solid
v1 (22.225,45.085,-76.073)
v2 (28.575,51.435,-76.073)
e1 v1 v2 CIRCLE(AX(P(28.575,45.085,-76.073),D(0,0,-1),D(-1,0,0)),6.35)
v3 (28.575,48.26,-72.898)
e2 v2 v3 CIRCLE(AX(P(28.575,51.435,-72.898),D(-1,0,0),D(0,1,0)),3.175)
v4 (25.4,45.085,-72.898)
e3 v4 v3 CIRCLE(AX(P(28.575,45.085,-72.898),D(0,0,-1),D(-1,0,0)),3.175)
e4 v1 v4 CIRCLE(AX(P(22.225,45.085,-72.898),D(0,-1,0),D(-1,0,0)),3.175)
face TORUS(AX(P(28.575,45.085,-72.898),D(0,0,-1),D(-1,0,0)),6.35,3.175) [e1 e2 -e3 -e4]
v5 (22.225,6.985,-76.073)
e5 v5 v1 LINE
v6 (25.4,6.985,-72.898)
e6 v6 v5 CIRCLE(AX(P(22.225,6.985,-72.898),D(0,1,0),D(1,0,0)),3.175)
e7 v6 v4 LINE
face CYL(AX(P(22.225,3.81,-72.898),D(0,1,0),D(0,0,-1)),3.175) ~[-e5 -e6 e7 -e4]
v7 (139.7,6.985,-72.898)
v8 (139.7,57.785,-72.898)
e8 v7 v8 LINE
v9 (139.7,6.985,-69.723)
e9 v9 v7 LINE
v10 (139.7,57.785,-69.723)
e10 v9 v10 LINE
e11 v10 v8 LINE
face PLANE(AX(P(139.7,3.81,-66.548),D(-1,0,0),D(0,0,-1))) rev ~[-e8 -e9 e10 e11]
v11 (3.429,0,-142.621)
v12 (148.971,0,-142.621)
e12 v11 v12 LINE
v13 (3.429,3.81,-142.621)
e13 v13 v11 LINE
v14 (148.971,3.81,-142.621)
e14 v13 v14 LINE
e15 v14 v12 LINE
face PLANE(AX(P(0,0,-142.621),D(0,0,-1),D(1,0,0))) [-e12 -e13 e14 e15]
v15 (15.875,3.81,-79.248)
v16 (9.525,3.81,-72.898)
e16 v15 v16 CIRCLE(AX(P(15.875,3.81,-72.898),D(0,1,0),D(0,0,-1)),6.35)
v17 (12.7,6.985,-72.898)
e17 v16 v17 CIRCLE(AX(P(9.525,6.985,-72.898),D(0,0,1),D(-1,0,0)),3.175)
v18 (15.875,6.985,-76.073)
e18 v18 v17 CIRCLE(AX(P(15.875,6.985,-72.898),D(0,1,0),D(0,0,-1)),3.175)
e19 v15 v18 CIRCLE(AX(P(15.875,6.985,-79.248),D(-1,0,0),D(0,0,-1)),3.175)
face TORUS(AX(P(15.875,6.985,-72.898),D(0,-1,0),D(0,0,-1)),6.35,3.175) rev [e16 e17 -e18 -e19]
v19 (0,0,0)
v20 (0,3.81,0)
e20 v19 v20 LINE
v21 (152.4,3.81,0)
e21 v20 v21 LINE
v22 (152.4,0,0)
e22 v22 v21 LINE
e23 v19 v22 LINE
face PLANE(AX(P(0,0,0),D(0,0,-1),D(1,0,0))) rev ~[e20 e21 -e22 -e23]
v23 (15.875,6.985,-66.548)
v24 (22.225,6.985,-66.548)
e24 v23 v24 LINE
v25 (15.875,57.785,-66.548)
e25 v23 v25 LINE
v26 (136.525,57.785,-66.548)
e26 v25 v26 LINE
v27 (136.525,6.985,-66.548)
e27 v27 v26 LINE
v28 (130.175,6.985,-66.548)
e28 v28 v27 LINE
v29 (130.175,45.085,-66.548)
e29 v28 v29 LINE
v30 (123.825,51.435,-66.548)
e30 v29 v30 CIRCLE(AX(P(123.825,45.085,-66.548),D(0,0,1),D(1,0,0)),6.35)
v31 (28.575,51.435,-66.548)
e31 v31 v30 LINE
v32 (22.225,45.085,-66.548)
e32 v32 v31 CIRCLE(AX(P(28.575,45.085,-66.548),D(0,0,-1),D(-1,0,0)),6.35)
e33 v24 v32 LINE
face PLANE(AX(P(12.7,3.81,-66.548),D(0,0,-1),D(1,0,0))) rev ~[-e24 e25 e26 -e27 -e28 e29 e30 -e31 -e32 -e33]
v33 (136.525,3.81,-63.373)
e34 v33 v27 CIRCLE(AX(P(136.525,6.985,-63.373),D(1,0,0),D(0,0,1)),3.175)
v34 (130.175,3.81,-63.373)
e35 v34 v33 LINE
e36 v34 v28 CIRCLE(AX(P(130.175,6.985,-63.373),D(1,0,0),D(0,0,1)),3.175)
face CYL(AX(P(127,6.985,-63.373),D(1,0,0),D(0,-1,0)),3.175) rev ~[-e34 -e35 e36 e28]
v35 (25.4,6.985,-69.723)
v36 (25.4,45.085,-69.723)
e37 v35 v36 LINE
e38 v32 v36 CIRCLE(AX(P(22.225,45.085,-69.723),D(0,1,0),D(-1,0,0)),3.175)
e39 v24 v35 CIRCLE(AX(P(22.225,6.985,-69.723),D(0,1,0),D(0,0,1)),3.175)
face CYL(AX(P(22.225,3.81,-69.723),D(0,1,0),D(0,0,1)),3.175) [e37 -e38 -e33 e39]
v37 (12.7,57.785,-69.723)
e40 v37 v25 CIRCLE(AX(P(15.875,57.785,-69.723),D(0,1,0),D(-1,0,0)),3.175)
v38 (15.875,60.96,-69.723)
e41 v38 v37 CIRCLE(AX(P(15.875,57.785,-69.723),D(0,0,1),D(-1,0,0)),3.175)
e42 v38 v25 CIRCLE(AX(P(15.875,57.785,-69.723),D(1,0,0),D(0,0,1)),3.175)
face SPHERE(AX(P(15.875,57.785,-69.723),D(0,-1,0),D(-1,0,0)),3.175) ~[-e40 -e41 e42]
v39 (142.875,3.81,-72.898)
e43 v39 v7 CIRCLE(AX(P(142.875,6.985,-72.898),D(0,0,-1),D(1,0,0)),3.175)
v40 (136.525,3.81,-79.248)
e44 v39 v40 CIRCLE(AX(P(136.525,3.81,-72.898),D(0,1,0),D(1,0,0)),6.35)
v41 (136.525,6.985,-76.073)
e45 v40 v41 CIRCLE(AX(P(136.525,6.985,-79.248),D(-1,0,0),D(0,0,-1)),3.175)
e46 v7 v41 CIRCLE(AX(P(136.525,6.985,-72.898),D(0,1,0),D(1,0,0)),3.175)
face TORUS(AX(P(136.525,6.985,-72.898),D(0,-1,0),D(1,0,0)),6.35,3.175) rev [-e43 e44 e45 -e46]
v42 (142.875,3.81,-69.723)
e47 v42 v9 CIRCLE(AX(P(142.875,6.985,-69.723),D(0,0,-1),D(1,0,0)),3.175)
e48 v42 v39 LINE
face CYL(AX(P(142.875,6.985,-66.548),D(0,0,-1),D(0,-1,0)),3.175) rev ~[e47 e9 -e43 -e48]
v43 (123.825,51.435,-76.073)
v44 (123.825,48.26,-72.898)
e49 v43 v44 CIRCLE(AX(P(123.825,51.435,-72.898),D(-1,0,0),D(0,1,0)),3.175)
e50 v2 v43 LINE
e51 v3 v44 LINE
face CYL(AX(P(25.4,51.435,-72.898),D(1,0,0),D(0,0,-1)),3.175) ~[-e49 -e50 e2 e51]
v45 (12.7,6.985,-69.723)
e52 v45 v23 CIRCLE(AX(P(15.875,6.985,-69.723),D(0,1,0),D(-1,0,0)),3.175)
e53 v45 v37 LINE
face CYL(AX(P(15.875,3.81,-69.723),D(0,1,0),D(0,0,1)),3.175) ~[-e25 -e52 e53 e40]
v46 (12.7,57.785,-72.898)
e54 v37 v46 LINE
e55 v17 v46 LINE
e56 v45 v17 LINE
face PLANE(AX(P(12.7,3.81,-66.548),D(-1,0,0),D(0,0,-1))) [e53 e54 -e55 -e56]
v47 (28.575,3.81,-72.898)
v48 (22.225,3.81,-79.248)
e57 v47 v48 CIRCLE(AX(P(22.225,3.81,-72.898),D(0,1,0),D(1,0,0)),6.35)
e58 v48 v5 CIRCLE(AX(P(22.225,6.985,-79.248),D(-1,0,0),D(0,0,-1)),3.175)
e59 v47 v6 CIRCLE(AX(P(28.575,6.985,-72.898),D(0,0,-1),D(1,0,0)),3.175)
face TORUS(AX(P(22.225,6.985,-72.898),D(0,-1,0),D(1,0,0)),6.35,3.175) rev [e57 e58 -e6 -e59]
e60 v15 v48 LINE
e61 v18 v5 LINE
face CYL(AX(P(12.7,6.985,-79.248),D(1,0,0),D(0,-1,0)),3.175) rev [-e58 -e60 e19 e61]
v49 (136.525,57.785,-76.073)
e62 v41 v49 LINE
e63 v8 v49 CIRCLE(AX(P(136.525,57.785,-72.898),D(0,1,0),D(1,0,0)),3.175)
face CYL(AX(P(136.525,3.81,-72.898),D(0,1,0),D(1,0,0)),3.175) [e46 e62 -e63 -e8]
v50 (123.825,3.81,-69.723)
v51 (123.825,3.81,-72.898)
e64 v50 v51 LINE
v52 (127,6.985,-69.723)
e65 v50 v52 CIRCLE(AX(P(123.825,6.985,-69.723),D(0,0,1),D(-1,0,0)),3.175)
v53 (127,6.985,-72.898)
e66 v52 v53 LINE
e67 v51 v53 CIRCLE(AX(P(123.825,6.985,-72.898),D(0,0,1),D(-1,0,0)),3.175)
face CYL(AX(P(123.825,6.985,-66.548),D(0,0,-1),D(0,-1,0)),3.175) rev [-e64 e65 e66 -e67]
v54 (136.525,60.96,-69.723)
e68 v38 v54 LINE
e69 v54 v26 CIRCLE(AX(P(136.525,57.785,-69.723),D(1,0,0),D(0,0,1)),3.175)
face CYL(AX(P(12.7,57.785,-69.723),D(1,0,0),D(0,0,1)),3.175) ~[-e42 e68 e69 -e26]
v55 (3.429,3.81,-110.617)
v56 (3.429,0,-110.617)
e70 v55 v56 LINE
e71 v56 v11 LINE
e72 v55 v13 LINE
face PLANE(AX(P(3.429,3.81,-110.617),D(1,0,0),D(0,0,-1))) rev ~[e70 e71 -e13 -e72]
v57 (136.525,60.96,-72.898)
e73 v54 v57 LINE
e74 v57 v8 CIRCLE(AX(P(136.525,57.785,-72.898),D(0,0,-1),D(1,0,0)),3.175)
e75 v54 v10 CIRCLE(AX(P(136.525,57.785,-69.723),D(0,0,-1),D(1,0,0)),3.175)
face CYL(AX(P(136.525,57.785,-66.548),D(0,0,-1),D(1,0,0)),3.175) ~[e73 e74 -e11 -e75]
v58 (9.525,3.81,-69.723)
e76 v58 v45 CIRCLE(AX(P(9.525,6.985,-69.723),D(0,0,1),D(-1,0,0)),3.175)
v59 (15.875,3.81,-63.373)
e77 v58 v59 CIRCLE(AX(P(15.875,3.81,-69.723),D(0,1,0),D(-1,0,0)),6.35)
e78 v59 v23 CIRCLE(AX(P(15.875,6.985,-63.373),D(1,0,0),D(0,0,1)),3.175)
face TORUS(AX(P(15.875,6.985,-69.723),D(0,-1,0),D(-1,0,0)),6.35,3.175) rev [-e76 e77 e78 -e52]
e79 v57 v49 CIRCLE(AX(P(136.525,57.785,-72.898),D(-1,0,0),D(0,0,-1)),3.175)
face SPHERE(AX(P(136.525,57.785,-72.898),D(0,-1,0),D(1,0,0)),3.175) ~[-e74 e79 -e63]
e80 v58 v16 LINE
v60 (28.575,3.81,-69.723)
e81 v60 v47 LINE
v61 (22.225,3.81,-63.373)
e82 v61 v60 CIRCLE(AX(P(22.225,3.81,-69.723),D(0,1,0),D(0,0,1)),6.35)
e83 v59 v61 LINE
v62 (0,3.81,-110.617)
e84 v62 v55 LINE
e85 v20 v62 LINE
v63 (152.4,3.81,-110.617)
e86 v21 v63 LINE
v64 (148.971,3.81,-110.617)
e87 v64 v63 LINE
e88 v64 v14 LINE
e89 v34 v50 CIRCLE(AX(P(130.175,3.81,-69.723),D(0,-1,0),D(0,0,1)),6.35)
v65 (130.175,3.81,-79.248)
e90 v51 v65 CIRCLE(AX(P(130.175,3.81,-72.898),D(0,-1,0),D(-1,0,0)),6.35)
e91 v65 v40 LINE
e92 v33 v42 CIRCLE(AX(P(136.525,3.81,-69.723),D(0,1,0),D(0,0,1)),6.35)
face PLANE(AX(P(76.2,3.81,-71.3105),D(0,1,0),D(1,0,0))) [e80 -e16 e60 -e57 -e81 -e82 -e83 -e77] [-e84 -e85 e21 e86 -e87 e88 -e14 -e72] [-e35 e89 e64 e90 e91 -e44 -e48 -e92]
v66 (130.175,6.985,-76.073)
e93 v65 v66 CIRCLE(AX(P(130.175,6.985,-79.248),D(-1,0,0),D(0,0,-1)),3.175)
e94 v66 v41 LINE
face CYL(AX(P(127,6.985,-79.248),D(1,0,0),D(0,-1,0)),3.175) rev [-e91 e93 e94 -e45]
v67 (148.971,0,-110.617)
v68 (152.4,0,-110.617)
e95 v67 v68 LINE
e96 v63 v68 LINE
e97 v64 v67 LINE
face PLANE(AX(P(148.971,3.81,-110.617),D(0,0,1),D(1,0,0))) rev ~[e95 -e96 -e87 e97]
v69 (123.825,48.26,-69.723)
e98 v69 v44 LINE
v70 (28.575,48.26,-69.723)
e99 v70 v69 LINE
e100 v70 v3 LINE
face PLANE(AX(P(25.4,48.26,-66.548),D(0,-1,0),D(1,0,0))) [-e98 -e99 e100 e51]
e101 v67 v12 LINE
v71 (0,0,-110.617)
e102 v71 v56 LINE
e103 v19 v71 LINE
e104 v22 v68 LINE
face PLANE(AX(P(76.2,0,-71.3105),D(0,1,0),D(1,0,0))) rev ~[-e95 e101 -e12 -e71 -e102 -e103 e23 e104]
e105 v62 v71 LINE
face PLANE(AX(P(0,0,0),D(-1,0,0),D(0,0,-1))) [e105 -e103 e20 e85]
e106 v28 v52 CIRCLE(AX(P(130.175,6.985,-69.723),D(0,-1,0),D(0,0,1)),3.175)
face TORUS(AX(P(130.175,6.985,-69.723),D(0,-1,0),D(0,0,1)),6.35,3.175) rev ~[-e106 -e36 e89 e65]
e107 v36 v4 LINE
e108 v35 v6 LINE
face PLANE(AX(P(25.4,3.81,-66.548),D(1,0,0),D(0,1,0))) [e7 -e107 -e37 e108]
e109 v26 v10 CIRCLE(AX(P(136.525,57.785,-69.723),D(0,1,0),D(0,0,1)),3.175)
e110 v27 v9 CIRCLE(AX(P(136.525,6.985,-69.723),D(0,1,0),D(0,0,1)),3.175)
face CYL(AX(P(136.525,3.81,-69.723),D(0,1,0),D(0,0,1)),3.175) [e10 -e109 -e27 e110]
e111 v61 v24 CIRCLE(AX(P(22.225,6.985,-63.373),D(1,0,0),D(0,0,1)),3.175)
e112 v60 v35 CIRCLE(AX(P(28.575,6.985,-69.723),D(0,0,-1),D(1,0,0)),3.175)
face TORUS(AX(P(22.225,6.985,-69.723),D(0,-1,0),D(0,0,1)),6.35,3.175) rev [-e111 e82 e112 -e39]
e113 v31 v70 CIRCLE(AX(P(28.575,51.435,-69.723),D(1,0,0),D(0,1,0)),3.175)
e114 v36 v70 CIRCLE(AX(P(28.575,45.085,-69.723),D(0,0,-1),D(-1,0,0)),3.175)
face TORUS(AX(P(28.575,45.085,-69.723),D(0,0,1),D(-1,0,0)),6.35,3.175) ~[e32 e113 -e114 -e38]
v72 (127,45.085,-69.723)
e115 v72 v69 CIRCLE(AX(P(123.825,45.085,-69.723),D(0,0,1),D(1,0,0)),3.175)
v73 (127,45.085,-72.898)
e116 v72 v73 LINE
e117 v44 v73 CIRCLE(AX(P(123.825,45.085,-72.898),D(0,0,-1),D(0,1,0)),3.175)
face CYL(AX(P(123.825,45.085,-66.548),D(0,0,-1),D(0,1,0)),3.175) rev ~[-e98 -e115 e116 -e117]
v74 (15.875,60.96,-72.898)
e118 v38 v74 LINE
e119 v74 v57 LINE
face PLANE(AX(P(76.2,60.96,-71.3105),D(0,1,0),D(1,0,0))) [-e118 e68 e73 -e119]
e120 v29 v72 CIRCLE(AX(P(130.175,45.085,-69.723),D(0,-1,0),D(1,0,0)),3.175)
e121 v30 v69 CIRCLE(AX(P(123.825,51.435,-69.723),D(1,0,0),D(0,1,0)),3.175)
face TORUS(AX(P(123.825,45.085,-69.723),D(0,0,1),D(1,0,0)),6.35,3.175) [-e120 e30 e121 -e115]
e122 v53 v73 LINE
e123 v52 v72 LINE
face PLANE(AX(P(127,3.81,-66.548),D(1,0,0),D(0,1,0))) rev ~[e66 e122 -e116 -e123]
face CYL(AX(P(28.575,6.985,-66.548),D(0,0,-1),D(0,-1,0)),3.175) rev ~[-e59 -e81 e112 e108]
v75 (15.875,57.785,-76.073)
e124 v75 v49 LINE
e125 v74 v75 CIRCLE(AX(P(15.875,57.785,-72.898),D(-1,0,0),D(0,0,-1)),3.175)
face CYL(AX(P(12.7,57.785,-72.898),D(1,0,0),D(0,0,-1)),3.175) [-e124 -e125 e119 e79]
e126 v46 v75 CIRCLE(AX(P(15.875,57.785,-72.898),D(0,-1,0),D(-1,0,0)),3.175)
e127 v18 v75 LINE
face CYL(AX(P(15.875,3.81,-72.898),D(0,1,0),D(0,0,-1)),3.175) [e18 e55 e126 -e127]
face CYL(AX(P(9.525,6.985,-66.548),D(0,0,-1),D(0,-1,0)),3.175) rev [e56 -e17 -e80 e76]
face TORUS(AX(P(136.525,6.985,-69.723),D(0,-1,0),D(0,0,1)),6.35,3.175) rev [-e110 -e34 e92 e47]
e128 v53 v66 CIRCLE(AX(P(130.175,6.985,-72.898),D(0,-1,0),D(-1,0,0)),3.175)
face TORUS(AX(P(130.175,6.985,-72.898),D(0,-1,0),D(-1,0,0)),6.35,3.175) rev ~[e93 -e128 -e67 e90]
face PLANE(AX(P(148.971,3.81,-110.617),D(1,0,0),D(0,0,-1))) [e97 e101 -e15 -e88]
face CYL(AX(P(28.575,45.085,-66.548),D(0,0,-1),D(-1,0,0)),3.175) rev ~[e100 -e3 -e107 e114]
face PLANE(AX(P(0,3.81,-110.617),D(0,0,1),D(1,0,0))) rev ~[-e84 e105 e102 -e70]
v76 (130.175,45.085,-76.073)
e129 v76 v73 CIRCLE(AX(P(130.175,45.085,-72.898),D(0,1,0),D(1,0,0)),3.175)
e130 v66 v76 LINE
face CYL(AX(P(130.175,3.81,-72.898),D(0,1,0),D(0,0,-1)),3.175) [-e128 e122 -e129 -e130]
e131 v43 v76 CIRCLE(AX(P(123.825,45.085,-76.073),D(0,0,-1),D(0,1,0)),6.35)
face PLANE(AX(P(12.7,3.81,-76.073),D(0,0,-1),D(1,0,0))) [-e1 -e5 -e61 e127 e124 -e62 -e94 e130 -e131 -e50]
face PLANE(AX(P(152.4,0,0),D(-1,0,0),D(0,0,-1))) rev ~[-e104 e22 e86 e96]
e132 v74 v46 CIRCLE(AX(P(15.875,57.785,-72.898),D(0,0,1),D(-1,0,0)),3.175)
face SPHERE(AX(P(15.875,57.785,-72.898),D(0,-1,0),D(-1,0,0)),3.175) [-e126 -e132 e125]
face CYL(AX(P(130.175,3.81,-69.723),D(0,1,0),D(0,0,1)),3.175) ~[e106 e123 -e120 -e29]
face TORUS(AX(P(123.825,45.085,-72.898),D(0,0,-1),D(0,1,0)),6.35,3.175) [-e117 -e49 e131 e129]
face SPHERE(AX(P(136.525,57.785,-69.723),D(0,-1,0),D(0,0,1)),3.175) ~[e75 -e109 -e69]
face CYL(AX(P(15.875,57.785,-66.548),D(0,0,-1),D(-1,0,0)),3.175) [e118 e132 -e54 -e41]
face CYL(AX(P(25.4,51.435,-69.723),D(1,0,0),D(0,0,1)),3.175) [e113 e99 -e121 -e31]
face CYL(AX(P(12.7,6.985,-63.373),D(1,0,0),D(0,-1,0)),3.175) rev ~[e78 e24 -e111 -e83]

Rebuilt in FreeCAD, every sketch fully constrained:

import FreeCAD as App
import Part
import Sketcher

V = App.Vector
Q = App.Units.Quantity


def edges_at(feature, points):
    """Names of the edges that pass closest to the given points."""
    edges = feature.Shape.Edges
    near = lambda p: min(range(len(edges)), key=lambda i: edges[i].distToShape(Part.Vertex(*p))[0])
    return sorted({f"Edge{near(p) + 1}" for p in points})


def add_polygon(sketch, points):
    """Adds a closed chain of lines whose ends are joined by coincident constraints."""
    first, n = sketch.GeometryCount, len(points)
    for a, b in zip(points, points[1:] + points[:1]):
        sketch.addGeometry(Part.LineSegment(App.Vector(*a, 0), App.Vector(*b, 0)), False)
    for i in range(n):
        sketch.addConstraint(Sketcher.Constraint("Coincident", first + i, 2, first + (i + 1) % n, 1))

doc = App.newDocument("Part")
body = doc.addObject("PartDesign::Body", "Body")

# Sketch on XZ plane
sketch1 = body.newObject("Sketcher::SketchObject", "Sketch")
sketch1.AttachmentSupport = (doc.getObject("XZ_Plane"), [""])
sketch1.MapMode = "FlatFace"
add_polygon(sketch1, [(0, -143), (0, 0), (152, 0), (152, -143)])  # lines 0-3
sketch1.addConstraint([
    Sketcher.Constraint("Vertical", 0),
    Sketcher.Constraint("Horizontal", 1),
    Sketcher.Constraint("Vertical", 2),
    Sketcher.Constraint("Horizontal", 3),
    Sketcher.Constraint("Coincident", 0, 2, -1, 1),
    Sketcher.Constraint("DistanceX", 1, 1, 1, 2, Q("6 in")),
    Sketcher.Constraint("DistanceY", 0, 1, 0, 2, Q("5.615 in")),
])
pad1 = body.newObject("PartDesign::Pad", "Pad")
pad1.Profile = sketch1
pad1.Length = Q("0.15 in")
pad1.Reversed = True

# Sketch on XZ plane
sketch2 = body.newObject("Sketcher::SketchObject", "Sketch001")
sketch2.AttachmentSupport = (doc.getObject("XZ_Plane"), [""])
sketch2.MapMode = "FlatFace"
sketch2.AttachmentOffset = App.Placement(V(0, 0, -0.15 * 25.4), App.Rotation())
add_polygon(sketch2, [(13, -76), (13, -67), (140, -67), (140, -76)])  # lines 0-3
sketch2.addConstraint([
    Sketcher.Constraint("Vertical", 0),
    Sketcher.Constraint("Horizontal", 1),
    Sketcher.Constraint("Vertical", 2),
    Sketcher.Constraint("Horizontal", 3),
    Sketcher.Constraint("DistanceX", 1, 1, 1, 2, Q("5 in")),
    Sketcher.Constraint("DistanceX", -1, 1, 0, 2, Q("0.5 in")),
    Sketcher.Constraint("DistanceY", 0, 1, 0, 2, Q("0.375 in")),
    Sketcher.Constraint("DistanceY", 0, 2, -1, 1, Q("2.62 in")),
])
pad2 = body.newObject("PartDesign::Pad", "Pad001")
pad2.Profile = sketch2
pad2.Length = Q("2.25 in")
pad2.Reversed = True

# Sketch on XY plane
sketch3 = body.newObject("Sketcher::SketchObject", "Sketch002")
sketch3.AttachmentSupport = (doc.getObject("XY_Plane"), [""])
sketch3.MapMode = "FlatFace"
sketch3.AttachmentOffset = App.Placement(V(0, 0, -2.62 * 25.4), App.Rotation())
add_polygon(sketch3, [(25, 48), (25, 4), (127, 4), (127, 48)])  # lines 0-3
sketch3.addConstraint([
    Sketcher.Constraint("Vertical", 0),
    Sketcher.Constraint("Horizontal", 1),
    Sketcher.Constraint("Vertical", 2),
    Sketcher.Constraint("Horizontal", 3),
    Sketcher.Constraint("DistanceX", 1, 1, 1, 2, Q("4 in")),
    Sketcher.Constraint("DistanceX", -1, 1, 0, 2, Q("1 in")),
    Sketcher.Constraint("DistanceY", 0, 2, 0, 1, Q("1.75 in")),
    Sketcher.Constraint("DistanceY", -1, 1, 2, 2, Q("1.9 in")),
])
pocket1 = body.newObject("PartDesign::Pocket", "Pocket")
pocket1.Profile = sketch3
pocket1.Type = "UpToFirst"
doc.recompute()

fillet = body.newObject("PartDesign::Fillet", "Fillet")
fillet.Base = (pocket1, edges_at(pocket1, [
    (12.7, 3.81, -71.311),
    (12.7, 32.385, -76.073),
    (19.05, 3.81, -66.548),
    (12.7, 32.385, -66.548),
    (139.7, 3.81, -71.311),
    (139.7, 32.385, -66.548),
    (133.35, 3.81, -76.073),
    (139.7, 32.385, -76.073),
    (12.7, 60.96, -71.311),
    (76.2, 60.96, -66.548),
    (139.7, 60.96, -71.311),
    (76.2, 60.96, -76.073),
    (19.05, 3.81, -76.073),
    (133.35, 3.81, -66.548),
    (25.4, 26.035, -76.073),
    (76.2, 48.26, -76.073),
    (127, 26.035, -76.073),
    (25.4, 3.81, -71.311),
    (25.4, 48.26, -71.311),
    (127, 48.26, -71.311),
    (127, 3.81, -71.311),
    (25.4, 26.035, -66.548),
    (127, 26.035, -66.548),
    (76.2, 48.26, -66.548),
]))
fillet.Radius = Q("0.125 in")

# Sketch on XZ plane
sketch4 = body.newObject("Sketcher::SketchObject", "Sketch003")
sketch4.AttachmentSupport = (doc.getObject("XZ_Plane"), [""])
sketch4.MapMode = "FlatFace"
sketch4.AttachmentOffset = App.Placement(V(0, 0, -0.15 * 25.4), App.Rotation())
add_polygon(sketch4, [(0, -142.6), (0, -110.6), (3.4, -110.6), (3.4, -142.6)])  # lines 0-3
add_polygon(sketch4, [(149, -142.6), (149, -110.6), (152.4, -110.6), (152.4, -142.6)])  # lines 4-7
sketch4.addConstraint([
    Sketcher.Constraint("Vertical", 0),
    Sketcher.Constraint("Horizontal", 1),
    Sketcher.Constraint("Vertical", 2),
    Sketcher.Constraint("Horizontal", 3),
    Sketcher.Constraint("Vertical", 4),
    Sketcher.Constraint("Horizontal", 5),
    Sketcher.Constraint("Vertical", 6),
    Sketcher.Constraint("Horizontal", 7),
    Sketcher.Constraint("PointOnObject", 0, 2, -2),
    Sketcher.Constraint("Horizontal", 1, 2, 4, 2),
    Sketcher.Constraint("Horizontal", 3, 2, 6, 2),
    Sketcher.Constraint("Equal", 3, 5),
    Sketcher.Constraint("DistanceX", -1, 1, 5, 2, Q("6 in")),
    Sketcher.Constraint("DistanceY", 0, 1, 0, 2, Q("1.26 in")),
    Sketcher.Constraint("DistanceX", 1, 1, 1, 2, Q("0.135 in")),
    Sketcher.Constraint("DistanceY", 0, 2, -1, 1, Q("4.355 in")),
])
pocket2 = body.newObject("PartDesign::Pocket", "Pocket001")
pocket2.Profile = sketch4
pocket2.Type = "ThroughAll"
pocket2.Reversed = True

doc.recompute()
